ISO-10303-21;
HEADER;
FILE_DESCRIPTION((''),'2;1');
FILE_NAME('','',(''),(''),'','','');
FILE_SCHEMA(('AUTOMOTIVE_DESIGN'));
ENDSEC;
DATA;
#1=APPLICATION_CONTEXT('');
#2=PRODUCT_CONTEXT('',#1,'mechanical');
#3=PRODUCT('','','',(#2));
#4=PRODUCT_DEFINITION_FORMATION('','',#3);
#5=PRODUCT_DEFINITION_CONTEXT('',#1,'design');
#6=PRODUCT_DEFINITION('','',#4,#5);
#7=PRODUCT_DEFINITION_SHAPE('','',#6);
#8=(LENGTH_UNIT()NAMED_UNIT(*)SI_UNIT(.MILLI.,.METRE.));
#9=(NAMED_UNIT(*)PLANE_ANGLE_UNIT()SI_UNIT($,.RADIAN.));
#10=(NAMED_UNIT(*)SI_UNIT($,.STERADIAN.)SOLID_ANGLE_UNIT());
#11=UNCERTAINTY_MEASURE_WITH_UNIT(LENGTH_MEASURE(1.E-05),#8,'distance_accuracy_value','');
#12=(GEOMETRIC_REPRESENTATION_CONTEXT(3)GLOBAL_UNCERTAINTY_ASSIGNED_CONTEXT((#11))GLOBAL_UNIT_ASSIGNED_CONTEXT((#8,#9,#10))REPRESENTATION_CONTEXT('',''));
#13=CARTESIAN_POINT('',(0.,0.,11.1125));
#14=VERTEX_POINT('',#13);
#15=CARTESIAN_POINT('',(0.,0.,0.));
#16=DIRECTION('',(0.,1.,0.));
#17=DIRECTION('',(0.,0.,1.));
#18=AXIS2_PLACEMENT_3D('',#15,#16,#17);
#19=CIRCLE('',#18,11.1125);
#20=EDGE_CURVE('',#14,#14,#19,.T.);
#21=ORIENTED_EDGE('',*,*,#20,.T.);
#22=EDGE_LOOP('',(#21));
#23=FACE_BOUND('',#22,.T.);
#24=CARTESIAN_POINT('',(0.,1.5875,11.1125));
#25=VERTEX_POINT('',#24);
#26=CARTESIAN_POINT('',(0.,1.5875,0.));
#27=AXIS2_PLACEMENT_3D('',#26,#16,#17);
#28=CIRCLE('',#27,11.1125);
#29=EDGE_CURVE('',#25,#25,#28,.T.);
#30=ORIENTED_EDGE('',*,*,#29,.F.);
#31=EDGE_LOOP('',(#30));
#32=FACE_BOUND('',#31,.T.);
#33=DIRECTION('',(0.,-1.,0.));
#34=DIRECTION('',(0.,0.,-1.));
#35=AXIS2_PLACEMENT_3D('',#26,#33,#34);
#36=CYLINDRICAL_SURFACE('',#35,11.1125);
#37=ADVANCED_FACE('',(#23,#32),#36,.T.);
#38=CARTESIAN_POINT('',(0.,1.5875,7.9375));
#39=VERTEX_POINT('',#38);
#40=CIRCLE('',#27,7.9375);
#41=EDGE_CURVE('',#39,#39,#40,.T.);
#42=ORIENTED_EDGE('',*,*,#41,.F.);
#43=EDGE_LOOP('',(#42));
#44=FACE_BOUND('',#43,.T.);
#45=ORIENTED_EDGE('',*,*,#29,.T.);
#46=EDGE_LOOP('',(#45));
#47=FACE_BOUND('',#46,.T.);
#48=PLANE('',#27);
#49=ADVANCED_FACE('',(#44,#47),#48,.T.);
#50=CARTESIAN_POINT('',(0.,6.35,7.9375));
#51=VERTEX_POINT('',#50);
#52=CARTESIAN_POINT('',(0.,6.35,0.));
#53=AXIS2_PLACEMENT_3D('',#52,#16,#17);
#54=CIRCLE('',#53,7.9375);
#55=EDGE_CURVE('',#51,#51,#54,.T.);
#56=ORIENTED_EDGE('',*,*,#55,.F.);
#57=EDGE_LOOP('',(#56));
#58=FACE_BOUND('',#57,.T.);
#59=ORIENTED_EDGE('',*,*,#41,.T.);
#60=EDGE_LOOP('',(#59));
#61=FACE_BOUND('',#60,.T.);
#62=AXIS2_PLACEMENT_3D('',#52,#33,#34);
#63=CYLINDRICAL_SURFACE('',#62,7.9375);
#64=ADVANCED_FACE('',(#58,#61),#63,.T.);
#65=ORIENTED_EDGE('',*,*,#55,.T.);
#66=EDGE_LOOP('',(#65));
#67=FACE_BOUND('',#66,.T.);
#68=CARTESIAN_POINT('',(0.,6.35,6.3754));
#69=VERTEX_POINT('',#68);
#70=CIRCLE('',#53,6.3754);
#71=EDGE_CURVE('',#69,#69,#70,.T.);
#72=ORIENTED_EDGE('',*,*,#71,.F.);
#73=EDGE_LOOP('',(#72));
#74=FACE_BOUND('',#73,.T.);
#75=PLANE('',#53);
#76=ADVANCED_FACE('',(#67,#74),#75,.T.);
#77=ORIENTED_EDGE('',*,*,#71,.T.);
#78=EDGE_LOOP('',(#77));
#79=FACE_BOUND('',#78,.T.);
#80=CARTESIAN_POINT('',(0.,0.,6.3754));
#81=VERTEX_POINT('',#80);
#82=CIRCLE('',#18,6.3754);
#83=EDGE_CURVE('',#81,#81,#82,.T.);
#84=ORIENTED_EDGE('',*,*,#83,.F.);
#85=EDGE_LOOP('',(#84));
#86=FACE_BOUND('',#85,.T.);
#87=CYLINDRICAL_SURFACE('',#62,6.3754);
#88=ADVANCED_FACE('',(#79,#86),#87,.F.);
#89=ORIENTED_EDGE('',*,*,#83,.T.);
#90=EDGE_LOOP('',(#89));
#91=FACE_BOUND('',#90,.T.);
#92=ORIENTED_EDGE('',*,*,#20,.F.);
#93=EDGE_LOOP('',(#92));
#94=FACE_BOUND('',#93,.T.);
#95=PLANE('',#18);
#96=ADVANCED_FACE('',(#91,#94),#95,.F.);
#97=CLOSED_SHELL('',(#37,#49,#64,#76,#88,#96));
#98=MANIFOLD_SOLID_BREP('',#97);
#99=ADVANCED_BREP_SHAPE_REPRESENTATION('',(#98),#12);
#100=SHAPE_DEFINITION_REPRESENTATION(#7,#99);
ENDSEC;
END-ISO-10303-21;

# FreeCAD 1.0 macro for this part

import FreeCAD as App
import Part
import Sketcher
Q = App.Units.Quantity

doc = App.newDocument("Part")
body = doc.addObject("PartDesign::Body", "Body")

sketch1 = doc.addObject("Sketcher::SketchObject", "Sketch")
body.addObject(sketch1)
sketch1.AttachmentSupport = (doc.XZ_Plane, [""])
sketch1.MapMode = "FlatFace"
sketch1.addGeometry([
    Part.Circle(App.Vector(0, 0, 0), App.Vector(0, 0, 1), 8),
    Part.Circle(App.Vector(0, 0, 0), App.Vector(0, 0, 1), 6),
], False)
sketch1.addConstraint([
    Sketcher.Constraint("Coincident", 0, 3, -1, 1),
    Sketcher.Constraint("Coincident", 1, 3, -1, 1),
    Sketcher.Constraint("Diameter", 0, Q("0.625 in")),
    Sketcher.Constraint("Diameter", 1, Q("0.502 in")),
])
pad1 = doc.addObject("PartDesign::Pad", "Pad")
body.addObject(pad1)
pad1.Profile = sketch1
pad1.Length = Q("0.25 in")
pad1.Reversed = True

sketch2 = doc.addObject("Sketcher::SketchObject", "Sketch001")
body.addObject(sketch2)
sketch2.AttachmentSupport = (doc.XZ_Plane, [""])
sketch2.MapMode = "FlatFace"
sketch2.addGeometry([
    Part.Circle(App.Vector(0, 0, 0), App.Vector(0, 0, 1), 11),
    Part.Circle(App.Vector(0, 0, 0), App.Vector(0, 0, 1), 8),
], False)
sketch2.addConstraint([
    Sketcher.Constraint("Coincident", 0, 3, -1, 1),
    Sketcher.Constraint("Coincident", 1, 3, -1, 1),
    Sketcher.Constraint("Diameter", 0, Q("0.875 in")),
    Sketcher.Constraint("Diameter", 1, Q("0.625 in")),
])
pad2 = doc.addObject("PartDesign::Pad", "Pad001")
body.addObject(pad2)
pad2.Profile = sketch2
pad2.Length = Q("0.0625 in")
pad2.Reversed = True

doc.recompute()
